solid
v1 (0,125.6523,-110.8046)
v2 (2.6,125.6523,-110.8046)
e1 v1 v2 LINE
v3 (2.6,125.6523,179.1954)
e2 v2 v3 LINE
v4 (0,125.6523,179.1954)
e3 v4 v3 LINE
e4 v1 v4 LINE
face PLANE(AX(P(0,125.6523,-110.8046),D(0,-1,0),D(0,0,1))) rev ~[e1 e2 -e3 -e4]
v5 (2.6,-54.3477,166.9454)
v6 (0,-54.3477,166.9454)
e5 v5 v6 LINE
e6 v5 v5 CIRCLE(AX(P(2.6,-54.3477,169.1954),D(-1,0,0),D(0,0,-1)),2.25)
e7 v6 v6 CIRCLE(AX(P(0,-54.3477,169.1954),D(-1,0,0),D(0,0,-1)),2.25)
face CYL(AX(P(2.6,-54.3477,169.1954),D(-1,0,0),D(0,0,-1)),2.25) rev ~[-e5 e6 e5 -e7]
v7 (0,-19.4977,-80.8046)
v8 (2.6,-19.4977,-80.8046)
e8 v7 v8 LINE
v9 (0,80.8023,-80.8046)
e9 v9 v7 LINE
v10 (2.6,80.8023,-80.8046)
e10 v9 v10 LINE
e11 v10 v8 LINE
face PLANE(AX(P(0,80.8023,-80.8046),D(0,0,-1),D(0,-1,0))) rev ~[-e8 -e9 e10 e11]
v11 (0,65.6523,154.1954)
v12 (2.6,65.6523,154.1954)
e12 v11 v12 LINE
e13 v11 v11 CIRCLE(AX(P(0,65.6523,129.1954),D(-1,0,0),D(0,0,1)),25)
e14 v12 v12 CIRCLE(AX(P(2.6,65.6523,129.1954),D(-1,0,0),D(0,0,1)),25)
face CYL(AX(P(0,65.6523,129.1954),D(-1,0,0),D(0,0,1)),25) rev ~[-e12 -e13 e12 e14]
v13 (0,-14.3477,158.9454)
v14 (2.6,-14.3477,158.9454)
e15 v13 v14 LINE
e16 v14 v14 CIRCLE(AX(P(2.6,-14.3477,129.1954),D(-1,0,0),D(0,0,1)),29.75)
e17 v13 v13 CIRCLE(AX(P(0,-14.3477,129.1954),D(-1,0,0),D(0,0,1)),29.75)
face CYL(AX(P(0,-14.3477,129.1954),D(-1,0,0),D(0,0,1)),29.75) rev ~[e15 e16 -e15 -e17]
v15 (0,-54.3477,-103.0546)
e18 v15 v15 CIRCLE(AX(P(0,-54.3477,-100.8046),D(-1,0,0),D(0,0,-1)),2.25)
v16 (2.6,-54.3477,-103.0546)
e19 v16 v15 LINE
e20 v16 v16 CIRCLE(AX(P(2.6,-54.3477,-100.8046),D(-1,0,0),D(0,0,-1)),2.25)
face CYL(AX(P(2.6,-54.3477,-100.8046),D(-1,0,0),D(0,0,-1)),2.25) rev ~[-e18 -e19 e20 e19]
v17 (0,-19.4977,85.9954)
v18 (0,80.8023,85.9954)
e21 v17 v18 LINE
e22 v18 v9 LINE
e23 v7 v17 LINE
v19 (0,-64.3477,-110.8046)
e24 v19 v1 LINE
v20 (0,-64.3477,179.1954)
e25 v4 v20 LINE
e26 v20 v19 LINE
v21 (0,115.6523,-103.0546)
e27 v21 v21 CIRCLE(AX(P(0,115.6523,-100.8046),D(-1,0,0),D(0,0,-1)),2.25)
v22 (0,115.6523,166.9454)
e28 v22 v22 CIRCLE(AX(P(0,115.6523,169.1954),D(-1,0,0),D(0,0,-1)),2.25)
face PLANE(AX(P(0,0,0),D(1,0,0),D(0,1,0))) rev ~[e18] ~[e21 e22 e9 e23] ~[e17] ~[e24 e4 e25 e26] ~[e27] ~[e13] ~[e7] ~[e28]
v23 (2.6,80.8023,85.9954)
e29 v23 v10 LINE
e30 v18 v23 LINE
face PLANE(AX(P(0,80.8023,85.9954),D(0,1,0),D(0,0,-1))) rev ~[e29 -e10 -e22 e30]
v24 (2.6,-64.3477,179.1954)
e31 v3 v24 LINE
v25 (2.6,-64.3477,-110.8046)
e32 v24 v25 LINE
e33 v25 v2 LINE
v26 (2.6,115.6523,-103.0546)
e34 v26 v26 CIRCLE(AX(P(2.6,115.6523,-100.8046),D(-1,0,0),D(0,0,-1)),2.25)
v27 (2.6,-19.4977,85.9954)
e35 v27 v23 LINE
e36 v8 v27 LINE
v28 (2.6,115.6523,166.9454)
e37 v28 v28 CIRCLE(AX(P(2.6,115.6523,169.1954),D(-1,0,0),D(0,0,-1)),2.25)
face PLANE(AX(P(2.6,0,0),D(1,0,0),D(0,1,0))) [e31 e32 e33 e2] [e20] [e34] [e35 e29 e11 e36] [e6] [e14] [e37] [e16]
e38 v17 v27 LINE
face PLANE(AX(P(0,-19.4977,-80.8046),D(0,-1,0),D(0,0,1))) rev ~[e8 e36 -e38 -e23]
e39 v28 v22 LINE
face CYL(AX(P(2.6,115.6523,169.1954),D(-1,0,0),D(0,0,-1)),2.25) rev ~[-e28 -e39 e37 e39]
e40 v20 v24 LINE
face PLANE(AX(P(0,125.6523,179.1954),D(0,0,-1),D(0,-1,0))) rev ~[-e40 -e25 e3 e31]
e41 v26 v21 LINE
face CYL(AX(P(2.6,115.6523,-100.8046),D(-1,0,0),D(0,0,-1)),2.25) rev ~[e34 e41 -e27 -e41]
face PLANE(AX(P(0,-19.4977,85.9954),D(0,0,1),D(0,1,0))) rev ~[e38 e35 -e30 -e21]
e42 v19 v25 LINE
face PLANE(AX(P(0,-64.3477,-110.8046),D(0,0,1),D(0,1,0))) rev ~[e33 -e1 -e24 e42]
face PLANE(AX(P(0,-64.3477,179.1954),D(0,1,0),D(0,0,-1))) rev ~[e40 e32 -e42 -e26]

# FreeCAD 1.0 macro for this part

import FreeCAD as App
import Part
import Sketcher
Q = App.Units.Quantity


def add_polygon(sketch, points):
    """Adds a closed chain of lines whose ends are joined by coincident constraints."""
    first, n = sketch.GeometryCount, len(points)
    for a, b in zip(points, points[1:] + points[:1]):
        sketch.addGeometry(Part.LineSegment(App.Vector(*a, 0), App.Vector(*b, 0)), False)
    for i in range(n):
        sketch.addConstraint(Sketcher.Constraint("Coincident", first + i, 2, first + (i + 1) % n, 1))

doc = App.newDocument("Part")
body = doc.addObject("PartDesign::Body", "Body")

sketch1 = body.newObject("Sketcher::SketchObject", "Sketch")
sketch1.AttachmentSupport = (doc.getObject("YZ_Plane"), [""])
sketch1.MapMode = "FlatFace"
add_polygon(sketch1, [(126, -111), (126, 179), (-64, 179), (-64, -111)])
sketch1.addConstraint(Sketcher.Constraint("Vertical", 0))
sketch1.addConstraint(Sketcher.Constraint("Horizontal", 1))
sketch1.addConstraint(Sketcher.Constraint("Vertical", 2))
sketch1.addConstraint(Sketcher.Constraint("Horizontal", 3))
sketch1.addConstraint(Sketcher.Constraint("DistanceX", 1, 2, 1, 1, Q("190 mm")))
sketch1.addConstraint(Sketcher.Constraint("DistanceY", 0, 1, 0, 2, Q("290 mm")))
sketch1.addConstraint(Sketcher.Constraint("DistanceX", -1, 1, 0, 2, Q("125.6523 mm")))
sketch1.addConstraint(Sketcher.Constraint("DistanceY", -1, 1, 0, 2, Q("179.1954 mm")))
pad1 = body.newObject("PartDesign::Pad", "Pad")
pad1.Profile = sketch1
pad1.Length = 2.6

sketch2 = body.newObject("Sketcher::SketchObject", "Sketch001")
sketch2.AttachmentSupport = (doc.getObject("YZ_Plane"), [""])
sketch2.MapMode = "FlatFace"
sketch2.AttachmentOffset = App.Placement(App.Vector(0, 0, 2.6), App.Rotation())
sketch2.addGeometry(Part.Circle(App.Vector(115.7, 169.2, 0), App.Vector(0, 0, 1), 2.2), False)
sketch2.addGeometry(Part.Circle(App.Vector(115.7, -100.8, 0), App.Vector(0, 0, 1), 2.2), False)
sketch2.addGeometry(Part.Circle(App.Vector(-54.3, 169.2, 0), App.Vector(0, 0, 1), 2.2), False)
sketch2.addGeometry(Part.Circle(App.Vector(-54.3, -100.8, 0), App.Vector(0, 0, 1), 2.2), False)
sketch2.addConstraint(Sketcher.Constraint("Equal", 0, 1))
sketch2.addConstraint(Sketcher.Constraint("Equal", 1, 2))
sketch2.addConstraint(Sketcher.Constraint("Equal", 2, 3))
sketch2.addConstraint(Sketcher.Constraint("Horizontal", 0, 3, 2, 3))
sketch2.addConstraint(Sketcher.Constraint("Horizontal", 1, 3, 3, 3))
sketch2.addConstraint(Sketcher.Constraint("Vertical", 0, 3, 1, 3))
sketch2.addConstraint(Sketcher.Constraint("Vertical", 2, 3, 3, 3))
sketch2.addConstraint(Sketcher.Constraint("Diameter", 0, Q("4.5 mm")))
sketch2.addConstraint(Sketcher.Constraint("DistanceY", 1, 3, 0, 3, Q("270 mm")))
sketch2.addConstraint(Sketcher.Constraint("DistanceX", 2, 3, 0, 3, Q("170 mm")))
sketch2.addConstraint(Sketcher.Constraint("DistanceX", -1, 1, 0, 3, Q("115.6523 mm")))
sketch2.addConstraint(Sketcher.Constraint("DistanceY", -1, 1, 0, 3, Q("169.1954 mm")))
doc.recompute()
hole = body.newObject("PartDesign::Hole", "Hole")
hole.Profile = sketch2
hole.ThreadType = "None"
hole.Diameter = 4.5
hole.DepthType = "Dimension"
hole.Depth = 10
hole.DrillPoint = "Angled"
hole.DrillPointAngle = 118

sketch3 = body.newObject("Sketcher::SketchObject", "Sketch002")
sketch3.AttachmentSupport = (doc.getObject("YZ_Plane"), [""])
sketch3.MapMode = "FlatFace"
sketch3.addGeometry(Part.Circle(App.Vector(-14, 129, 0), App.Vector(0, 0, 1), 30), False)
sketch3.addGeometry(Part.Circle(App.Vector(66, 129, 0), App.Vector(0, 0, 1), 25), False)
add_polygon(sketch3, [(81, -81), (-19, -81), (-19, 86), (81, 86)])
sketch3.addConstraint(Sketcher.Constraint("Horizontal", 2))
sketch3.addConstraint(Sketcher.Constraint("Vertical", 3))
sketch3.addConstraint(Sketcher.Constraint("Horizontal", 4))
sketch3.addConstraint(Sketcher.Constraint("Vertical", 5))
sketch3.addConstraint(Sketcher.Constraint("Horizontal", 0, 3, 1, 3))
sketch3.addConstraint(Sketcher.Constraint("Diameter", 1, Q("50 mm")))
sketch3.addConstraint(Sketcher.Constraint("Diameter", 0, Q("59.5 mm")))
sketch3.addConstraint(Sketcher.Constraint("DistanceX", 2, 2, 2, 1, Q("100.3 mm")))
sketch3.addConstraint(Sketcher.Constraint("DistanceY", 3, 1, 3, 2, Q("166.8 mm")))
sketch3.addConstraint(Sketcher.Constraint("DistanceX", 0, 3, 1, 3, Q("80 mm")))
sketch3.addConstraint(Sketcher.Constraint("DistanceY", 2, 2, 0, 3, Q("210 mm")))
sketch3.addConstraint(Sketcher.Constraint("DistanceX", 2, 2, 0, 3, Q("5.15 mm")))
sketch3.addConstraint(Sketcher.Constraint("DistanceX", 0, 3, -1, 1, Q("14.3477 mm")))
sketch3.addConstraint(Sketcher.Constraint("DistanceY", -1, 1, 0, 3, Q("129.1954 mm")))
pocket1 = body.newObject("PartDesign::Pocket", "Pocket")
pocket1.Profile = sketch3
pocket1.Length = 2.6
pocket1.Reversed = True

doc.recompute()
